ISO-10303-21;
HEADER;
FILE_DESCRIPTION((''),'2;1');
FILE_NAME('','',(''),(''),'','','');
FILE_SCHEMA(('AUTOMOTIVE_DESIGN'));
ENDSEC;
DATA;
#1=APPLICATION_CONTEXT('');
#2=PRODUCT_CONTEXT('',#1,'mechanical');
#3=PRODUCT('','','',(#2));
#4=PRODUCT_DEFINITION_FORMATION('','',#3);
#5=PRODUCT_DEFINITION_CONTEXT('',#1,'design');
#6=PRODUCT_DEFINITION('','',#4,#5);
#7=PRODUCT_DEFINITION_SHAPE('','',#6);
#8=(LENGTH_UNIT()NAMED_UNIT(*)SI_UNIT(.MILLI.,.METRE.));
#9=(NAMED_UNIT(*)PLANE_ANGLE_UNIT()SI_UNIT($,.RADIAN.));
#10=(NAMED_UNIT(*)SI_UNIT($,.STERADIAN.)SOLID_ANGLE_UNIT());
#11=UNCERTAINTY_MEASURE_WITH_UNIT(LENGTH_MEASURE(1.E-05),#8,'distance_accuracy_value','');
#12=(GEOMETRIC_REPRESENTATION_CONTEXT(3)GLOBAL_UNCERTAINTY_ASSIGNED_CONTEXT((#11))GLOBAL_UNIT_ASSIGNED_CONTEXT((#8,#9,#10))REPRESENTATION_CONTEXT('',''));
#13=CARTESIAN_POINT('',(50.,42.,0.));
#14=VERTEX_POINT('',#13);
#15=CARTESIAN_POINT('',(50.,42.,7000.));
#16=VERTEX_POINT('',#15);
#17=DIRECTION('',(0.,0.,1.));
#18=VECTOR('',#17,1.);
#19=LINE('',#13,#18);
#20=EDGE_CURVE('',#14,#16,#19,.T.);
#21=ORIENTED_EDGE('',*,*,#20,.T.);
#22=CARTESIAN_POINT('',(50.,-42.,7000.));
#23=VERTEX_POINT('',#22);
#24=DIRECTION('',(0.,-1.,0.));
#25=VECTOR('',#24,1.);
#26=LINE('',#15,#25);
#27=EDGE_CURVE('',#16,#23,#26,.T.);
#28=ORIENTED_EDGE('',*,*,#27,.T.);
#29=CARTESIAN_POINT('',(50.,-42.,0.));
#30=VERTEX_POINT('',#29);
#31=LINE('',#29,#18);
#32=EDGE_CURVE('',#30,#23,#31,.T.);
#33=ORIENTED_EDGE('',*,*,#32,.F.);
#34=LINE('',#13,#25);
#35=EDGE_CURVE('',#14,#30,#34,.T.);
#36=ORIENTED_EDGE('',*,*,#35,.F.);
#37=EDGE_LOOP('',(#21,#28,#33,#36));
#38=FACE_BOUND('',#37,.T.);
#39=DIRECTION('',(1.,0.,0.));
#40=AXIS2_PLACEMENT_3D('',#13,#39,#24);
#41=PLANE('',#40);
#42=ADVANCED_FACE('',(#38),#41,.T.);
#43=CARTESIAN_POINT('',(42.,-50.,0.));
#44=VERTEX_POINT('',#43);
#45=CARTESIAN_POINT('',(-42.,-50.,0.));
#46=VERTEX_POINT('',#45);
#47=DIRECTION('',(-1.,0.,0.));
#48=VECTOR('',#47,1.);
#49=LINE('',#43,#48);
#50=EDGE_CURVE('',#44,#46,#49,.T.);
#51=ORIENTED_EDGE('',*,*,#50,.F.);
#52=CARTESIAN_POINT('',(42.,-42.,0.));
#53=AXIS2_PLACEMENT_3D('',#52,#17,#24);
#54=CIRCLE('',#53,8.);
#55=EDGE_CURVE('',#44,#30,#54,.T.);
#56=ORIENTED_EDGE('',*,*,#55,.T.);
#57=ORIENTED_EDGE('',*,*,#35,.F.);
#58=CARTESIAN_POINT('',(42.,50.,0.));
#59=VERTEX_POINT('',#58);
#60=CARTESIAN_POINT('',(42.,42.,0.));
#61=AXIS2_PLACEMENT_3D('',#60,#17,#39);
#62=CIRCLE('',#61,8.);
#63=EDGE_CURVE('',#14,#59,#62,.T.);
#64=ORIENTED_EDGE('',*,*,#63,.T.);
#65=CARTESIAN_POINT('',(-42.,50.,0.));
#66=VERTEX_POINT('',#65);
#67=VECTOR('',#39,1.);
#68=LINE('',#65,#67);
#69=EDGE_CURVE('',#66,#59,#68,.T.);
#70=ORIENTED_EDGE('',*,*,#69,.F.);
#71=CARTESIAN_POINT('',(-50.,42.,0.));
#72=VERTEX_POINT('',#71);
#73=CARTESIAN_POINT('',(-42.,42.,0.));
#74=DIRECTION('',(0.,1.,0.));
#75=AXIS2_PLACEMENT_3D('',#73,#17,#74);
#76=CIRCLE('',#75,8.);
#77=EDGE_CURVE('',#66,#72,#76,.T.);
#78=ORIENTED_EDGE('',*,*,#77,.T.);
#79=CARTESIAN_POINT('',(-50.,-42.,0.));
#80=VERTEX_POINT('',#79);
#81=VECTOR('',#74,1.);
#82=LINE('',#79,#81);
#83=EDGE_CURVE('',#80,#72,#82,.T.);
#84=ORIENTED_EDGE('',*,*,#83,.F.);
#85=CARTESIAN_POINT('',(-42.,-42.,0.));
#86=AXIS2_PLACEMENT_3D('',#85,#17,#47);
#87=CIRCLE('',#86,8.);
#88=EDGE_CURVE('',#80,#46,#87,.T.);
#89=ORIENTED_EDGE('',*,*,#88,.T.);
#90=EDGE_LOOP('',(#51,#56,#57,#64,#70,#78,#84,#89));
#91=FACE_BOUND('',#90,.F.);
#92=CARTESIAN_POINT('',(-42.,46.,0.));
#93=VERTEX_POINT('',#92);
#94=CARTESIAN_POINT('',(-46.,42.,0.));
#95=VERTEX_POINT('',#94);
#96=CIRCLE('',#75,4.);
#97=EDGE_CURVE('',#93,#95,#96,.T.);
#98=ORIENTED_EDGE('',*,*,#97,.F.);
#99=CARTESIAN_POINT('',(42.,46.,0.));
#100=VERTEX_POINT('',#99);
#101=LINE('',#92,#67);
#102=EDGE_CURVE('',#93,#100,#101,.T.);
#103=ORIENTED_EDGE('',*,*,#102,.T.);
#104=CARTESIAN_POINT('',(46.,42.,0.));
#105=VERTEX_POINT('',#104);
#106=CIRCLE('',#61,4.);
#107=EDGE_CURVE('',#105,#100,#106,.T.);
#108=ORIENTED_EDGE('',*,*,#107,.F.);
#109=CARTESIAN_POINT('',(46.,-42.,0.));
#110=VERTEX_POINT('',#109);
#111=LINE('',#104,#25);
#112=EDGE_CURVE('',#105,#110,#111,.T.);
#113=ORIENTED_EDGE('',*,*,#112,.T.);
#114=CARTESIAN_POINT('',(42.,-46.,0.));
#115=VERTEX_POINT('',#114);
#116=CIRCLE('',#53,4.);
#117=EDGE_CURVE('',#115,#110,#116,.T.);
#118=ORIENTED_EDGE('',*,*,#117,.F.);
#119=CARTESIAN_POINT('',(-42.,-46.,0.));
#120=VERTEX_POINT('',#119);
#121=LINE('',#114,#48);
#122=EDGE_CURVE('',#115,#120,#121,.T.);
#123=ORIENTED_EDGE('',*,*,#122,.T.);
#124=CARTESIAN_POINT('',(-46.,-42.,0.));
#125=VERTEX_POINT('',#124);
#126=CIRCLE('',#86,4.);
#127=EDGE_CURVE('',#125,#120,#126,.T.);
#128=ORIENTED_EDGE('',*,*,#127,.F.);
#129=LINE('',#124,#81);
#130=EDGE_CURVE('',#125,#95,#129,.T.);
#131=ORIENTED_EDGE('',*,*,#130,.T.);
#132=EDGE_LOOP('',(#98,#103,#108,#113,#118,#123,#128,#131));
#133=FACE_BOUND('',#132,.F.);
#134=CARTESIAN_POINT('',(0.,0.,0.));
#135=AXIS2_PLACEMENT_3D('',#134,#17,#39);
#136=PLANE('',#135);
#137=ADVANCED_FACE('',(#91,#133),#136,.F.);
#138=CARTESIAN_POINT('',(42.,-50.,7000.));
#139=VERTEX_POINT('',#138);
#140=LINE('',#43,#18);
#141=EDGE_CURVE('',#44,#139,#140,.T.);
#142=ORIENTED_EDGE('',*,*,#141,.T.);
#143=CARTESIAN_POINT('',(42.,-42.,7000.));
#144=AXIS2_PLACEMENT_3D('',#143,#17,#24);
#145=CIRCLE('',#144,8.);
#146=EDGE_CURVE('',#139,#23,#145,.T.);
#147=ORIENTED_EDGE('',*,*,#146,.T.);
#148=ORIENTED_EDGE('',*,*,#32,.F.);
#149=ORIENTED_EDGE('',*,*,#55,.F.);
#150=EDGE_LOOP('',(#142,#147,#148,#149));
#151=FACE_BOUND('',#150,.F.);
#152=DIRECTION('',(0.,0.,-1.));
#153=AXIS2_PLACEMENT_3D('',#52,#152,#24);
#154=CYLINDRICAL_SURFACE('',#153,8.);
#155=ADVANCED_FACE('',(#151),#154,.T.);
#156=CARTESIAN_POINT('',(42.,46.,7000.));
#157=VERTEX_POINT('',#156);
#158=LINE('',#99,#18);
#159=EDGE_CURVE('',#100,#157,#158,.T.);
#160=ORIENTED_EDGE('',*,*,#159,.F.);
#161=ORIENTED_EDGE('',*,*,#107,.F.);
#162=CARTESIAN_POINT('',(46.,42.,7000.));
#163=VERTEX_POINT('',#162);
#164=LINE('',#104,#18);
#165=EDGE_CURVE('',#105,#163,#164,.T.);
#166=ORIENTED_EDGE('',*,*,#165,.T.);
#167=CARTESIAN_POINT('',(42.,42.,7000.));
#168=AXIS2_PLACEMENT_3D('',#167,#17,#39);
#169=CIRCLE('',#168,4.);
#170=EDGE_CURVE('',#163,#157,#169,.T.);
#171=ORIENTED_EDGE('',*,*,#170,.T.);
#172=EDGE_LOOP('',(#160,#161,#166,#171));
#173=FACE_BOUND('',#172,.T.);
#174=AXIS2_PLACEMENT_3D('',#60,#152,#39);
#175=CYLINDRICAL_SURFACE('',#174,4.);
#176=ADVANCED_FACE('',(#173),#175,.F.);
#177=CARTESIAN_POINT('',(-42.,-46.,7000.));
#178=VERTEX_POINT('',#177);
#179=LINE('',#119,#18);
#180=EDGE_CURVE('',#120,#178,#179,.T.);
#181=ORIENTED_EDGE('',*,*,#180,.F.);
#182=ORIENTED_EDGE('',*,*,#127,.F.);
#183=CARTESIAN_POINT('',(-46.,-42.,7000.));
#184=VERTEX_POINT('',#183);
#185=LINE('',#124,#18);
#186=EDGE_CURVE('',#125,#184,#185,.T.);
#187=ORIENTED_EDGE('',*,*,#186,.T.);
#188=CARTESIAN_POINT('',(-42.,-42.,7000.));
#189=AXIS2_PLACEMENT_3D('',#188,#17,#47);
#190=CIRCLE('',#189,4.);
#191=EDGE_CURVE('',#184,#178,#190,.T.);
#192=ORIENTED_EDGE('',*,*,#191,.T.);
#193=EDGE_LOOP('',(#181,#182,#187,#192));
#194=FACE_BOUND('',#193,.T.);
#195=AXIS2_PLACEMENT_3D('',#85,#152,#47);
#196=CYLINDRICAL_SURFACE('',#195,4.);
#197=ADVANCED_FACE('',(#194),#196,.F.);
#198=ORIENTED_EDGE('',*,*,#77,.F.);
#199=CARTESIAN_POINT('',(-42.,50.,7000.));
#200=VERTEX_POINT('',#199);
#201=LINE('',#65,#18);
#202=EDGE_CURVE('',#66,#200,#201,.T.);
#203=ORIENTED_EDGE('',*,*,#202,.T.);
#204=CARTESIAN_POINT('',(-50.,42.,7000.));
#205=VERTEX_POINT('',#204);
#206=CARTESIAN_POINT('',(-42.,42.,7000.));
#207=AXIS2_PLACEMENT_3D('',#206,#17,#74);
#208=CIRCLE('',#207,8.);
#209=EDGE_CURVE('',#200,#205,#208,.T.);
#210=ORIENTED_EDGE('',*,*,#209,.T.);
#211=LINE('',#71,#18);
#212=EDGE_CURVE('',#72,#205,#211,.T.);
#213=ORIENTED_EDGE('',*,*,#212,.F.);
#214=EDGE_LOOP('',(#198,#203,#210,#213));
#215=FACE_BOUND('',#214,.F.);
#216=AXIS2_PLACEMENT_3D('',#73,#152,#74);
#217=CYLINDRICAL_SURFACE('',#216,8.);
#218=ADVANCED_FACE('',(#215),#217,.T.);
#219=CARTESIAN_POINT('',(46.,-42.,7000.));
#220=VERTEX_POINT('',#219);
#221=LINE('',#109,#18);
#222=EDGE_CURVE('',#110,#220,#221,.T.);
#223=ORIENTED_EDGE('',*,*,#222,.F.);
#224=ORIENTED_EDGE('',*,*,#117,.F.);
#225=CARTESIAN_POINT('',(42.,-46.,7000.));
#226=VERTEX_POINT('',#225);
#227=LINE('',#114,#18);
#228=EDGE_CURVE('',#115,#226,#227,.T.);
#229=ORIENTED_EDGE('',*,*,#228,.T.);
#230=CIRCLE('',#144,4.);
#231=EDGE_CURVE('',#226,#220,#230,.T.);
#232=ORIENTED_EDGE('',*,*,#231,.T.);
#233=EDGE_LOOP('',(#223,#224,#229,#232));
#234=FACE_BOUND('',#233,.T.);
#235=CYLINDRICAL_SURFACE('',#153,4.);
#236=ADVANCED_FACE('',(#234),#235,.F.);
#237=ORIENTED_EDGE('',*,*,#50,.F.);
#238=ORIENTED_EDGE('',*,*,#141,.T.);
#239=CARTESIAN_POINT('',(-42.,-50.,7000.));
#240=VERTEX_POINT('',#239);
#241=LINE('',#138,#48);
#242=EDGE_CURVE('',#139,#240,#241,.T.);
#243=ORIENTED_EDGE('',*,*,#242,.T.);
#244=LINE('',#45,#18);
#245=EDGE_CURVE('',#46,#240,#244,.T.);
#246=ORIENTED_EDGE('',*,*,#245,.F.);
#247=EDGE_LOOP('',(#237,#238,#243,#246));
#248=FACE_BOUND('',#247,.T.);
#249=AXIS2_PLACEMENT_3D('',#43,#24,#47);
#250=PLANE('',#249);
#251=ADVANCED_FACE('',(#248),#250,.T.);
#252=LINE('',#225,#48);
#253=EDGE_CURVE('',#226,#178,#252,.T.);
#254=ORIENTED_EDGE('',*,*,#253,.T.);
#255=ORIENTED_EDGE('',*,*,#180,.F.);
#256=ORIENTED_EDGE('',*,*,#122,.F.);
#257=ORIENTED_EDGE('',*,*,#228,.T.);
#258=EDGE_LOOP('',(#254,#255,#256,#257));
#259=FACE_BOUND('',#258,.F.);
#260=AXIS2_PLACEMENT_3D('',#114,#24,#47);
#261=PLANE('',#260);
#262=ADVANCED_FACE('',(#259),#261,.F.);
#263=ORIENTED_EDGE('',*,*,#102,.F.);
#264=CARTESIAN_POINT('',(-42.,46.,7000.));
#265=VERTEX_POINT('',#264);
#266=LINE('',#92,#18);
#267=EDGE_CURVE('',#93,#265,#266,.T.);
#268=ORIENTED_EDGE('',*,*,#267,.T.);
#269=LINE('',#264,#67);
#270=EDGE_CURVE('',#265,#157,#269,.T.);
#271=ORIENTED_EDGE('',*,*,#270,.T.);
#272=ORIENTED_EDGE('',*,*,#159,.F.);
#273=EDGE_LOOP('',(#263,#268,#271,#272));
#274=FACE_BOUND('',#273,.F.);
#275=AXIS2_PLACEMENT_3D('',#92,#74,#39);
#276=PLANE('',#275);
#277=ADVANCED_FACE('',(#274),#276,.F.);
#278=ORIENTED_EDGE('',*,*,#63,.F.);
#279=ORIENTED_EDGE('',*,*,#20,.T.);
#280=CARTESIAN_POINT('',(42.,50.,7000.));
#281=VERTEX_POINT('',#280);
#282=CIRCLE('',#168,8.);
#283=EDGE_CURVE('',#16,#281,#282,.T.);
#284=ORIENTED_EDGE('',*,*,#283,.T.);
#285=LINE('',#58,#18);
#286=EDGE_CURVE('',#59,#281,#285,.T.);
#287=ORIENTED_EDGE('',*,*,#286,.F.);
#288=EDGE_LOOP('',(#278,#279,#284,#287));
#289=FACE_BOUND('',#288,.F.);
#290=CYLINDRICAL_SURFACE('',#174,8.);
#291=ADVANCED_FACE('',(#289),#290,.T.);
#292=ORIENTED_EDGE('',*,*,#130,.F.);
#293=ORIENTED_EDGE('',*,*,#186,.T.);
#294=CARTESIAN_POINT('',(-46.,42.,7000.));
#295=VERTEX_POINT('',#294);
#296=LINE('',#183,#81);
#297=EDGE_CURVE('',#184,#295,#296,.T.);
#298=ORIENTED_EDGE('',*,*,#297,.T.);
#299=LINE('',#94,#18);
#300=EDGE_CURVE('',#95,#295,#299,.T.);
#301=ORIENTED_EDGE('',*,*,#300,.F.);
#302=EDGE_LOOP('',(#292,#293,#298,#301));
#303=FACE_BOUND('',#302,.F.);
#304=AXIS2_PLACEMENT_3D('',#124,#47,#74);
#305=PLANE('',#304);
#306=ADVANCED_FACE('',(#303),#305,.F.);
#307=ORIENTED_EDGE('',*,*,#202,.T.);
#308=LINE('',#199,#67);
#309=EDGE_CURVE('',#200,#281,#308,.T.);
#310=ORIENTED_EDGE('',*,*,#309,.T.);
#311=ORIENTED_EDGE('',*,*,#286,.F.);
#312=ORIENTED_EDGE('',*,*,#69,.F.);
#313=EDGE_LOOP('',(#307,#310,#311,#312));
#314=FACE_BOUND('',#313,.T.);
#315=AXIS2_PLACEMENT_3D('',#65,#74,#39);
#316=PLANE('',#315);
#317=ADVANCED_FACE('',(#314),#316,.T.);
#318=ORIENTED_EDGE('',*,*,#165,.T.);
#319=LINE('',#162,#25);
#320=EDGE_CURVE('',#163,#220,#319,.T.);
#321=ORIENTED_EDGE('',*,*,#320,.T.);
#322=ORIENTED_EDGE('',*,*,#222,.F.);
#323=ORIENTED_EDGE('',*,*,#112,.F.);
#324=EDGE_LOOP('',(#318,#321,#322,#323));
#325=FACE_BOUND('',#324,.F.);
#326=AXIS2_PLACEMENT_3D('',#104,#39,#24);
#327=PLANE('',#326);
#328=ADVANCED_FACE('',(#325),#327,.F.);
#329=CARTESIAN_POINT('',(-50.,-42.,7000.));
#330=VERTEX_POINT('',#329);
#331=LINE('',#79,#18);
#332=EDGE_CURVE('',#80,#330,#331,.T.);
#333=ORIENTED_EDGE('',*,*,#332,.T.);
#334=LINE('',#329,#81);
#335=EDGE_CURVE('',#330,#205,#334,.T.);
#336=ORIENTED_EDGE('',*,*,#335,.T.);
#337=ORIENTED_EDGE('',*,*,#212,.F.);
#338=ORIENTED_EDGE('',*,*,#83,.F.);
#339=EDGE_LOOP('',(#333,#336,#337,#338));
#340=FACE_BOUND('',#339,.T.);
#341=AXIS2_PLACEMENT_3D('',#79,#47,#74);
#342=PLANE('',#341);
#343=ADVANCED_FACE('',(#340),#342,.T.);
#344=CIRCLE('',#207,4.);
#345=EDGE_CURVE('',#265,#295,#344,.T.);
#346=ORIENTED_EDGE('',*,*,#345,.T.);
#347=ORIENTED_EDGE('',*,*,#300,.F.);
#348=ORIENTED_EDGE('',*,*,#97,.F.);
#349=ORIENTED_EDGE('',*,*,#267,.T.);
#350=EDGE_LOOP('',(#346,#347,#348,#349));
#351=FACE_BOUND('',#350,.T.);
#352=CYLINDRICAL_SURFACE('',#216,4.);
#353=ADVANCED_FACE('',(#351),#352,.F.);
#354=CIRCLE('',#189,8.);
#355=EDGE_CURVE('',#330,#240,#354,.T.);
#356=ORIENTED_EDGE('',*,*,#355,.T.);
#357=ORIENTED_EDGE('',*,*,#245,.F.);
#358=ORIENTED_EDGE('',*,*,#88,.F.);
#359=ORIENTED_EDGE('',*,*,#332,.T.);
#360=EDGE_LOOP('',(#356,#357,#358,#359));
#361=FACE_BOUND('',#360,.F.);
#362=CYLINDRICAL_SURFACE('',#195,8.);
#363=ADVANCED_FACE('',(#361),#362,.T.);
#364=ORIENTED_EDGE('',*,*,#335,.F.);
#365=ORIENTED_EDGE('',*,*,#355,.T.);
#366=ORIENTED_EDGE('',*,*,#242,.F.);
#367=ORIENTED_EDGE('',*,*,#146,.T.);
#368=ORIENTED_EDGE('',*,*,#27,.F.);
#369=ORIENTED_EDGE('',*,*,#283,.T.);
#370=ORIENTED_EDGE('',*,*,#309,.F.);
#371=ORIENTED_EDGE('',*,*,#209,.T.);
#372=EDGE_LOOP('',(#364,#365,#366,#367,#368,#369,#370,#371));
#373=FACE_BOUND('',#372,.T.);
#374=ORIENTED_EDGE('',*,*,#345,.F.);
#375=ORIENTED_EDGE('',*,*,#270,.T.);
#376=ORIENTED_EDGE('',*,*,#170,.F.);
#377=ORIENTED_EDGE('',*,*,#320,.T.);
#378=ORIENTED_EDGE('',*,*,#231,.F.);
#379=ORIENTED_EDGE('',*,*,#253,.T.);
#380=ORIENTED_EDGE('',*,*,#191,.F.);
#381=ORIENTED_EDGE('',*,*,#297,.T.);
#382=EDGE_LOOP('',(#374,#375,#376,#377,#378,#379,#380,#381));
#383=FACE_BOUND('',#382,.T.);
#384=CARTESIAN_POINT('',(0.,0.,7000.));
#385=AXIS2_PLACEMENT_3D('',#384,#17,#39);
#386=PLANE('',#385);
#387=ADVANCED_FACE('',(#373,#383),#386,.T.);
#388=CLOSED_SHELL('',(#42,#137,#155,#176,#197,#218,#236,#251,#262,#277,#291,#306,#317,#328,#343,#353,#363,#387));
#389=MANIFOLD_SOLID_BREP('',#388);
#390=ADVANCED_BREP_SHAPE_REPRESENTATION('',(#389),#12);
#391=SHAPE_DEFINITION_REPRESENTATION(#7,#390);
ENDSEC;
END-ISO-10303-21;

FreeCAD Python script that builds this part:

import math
import FreeCAD as App
import Part
import Sketcher

V = App.Vector
Q = App.Units.Quantity

doc = App.newDocument("Part")
body = doc.addObject("PartDesign::Body", "Body")

sketch1 = body.newObject("Sketcher::SketchObject", "Sketch")
sketch1.AttachmentSupport = (doc.getObject("XY_Plane"), [""])
sketch1.MapMode = "FlatFace"
sketch1.addGeometry(Part.LineSegment(V(-50, 42, 0), V(-50, -42, 0)), False)
sketch1.addGeometry(Part.ArcOfCircle(Part.Circle(V(-42, -42, 0), V(0, 0, 1), 8), math.radians(180), math.radians(270)), False)
sketch1.addGeometry(Part.LineSegment(V(-42, -50, 0), V(42, -50, 0)), False)
sketch1.addGeometry(Part.ArcOfCircle(Part.Circle(V(42, -42, 0), V(0, 0, 1), 8), math.radians(-90), math.radians(0)), False)
sketch1.addGeometry(Part.LineSegment(V(50, -42, 0), V(50, 42, 0)), False)
sketch1.addGeometry(Part.ArcOfCircle(Part.Circle(V(42, 42, 0), V(0, 0, 1), 8), math.radians(0), math.radians(90)), False)
sketch1.addGeometry(Part.LineSegment(V(42, 50, 0), V(-42, 50, 0)), False)
sketch1.addGeometry(Part.ArcOfCircle(Part.Circle(V(-42, 42, 0), V(0, 0, 1), 8), math.radians(90), math.radians(180)), False)
sketch1.addGeometry(Part.ArcOfCircle(Part.Circle(V(-42, 42, 0), V(0, 0, 1), 4), math.radians(90), math.radians(180)), False)
sketch1.addGeometry(Part.LineSegment(V(-42, 46, 0), V(42, 46, 0)), False)
sketch1.addGeometry(Part.ArcOfCircle(Part.Circle(V(42, 42, 0), V(0, 0, 1), 4), math.radians(0), math.radians(90)), False)
sketch1.addGeometry(Part.LineSegment(V(46, 42, 0), V(46, -42, 0)), False)
sketch1.addGeometry(Part.ArcOfCircle(Part.Circle(V(42, -42, 0), V(0, 0, 1), 4), math.radians(-90), math.radians(0)), False)
sketch1.addGeometry(Part.LineSegment(V(42, -46, 0), V(-42, -46, 0)), False)
sketch1.addGeometry(Part.ArcOfCircle(Part.Circle(V(-42, -42, 0), V(0, 0, 1), 4), math.radians(180), math.radians(270)), False)
sketch1.addGeometry(Part.LineSegment(V(-46, -42, 0), V(-46, 42, 0)), False)
sketch1.addConstraint(Sketcher.Constraint("Tangent", 0, 2, 1, 1))
sketch1.addConstraint(Sketcher.Constraint("Tangent", 1, 2, 2, 1))
sketch1.addConstraint(Sketcher.Constraint("Tangent", 2, 2, 3, 1))
sketch1.addConstraint(Sketcher.Constraint("Tangent", 3, 2, 4, 1))
sketch1.addConstraint(Sketcher.Constraint("Tangent", 4, 2, 5, 1))
sketch1.addConstraint(Sketcher.Constraint("Tangent", 5, 2, 6, 1))
sketch1.addConstraint(Sketcher.Constraint("Tangent", 6, 2, 7, 1))
sketch1.addConstraint(Sketcher.Constraint("Tangent", 7, 2, 0, 1))
sketch1.addConstraint(Sketcher.Constraint("Tangent", 8, 1, 9, 1))
sketch1.addConstraint(Sketcher.Constraint("Tangent", 9, 2, 10, 2))
sketch1.addConstraint(Sketcher.Constraint("Tangent", 10, 1, 11, 1))
sketch1.addConstraint(Sketcher.Constraint("Tangent", 11, 2, 12, 2))
sketch1.addConstraint(Sketcher.Constraint("Tangent", 12, 1, 13, 1))
sketch1.addConstraint(Sketcher.Constraint("Tangent", 13, 2, 14, 2))
sketch1.addConstraint(Sketcher.Constraint("Tangent", 14, 1, 15, 1))
sketch1.addConstraint(Sketcher.Constraint("Tangent", 15, 2, 8, 2))
sketch1.addConstraint(Sketcher.Constraint("Vertical", 0))
sketch1.addConstraint(Sketcher.Constraint("Horizontal", 2))
sketch1.addConstraint(Sketcher.Constraint("Vertical", 4))
sketch1.addConstraint(Sketcher.Constraint("Horizontal", 6))
sketch1.addConstraint(Sketcher.Constraint("Horizontal", 9))
sketch1.addConstraint(Sketcher.Constraint("Vertical", 11))
sketch1.addConstraint(Sketcher.Constraint("Horizontal", 13))
sketch1.addConstraint(Sketcher.Constraint("Vertical", 15))
sketch1.addConstraint(Sketcher.Constraint("Coincident", 8, 3, 7, 3))
sketch1.addConstraint(Sketcher.Constraint("Coincident", 10, 3, 5, 3))
sketch1.addConstraint(Sketcher.Constraint("Coincident", 12, 3, 3, 3))
sketch1.addConstraint(Sketcher.Constraint("Equal", 1, 3))
sketch1.addConstraint(Sketcher.Constraint("Equal", 3, 5))
sketch1.addConstraint(Sketcher.Constraint("Equal", 5, 7))
sketch1.addConstraint(Sketcher.Constraint("Equal", 12, 14))
sketch1.addConstraint(Sketcher.Constraint("Symmetric", 1, 3, 5, 3, -1, 1))
sketch1.addConstraint(Sketcher.Constraint("Equal", 13, 0))
sketch1.addConstraint(Sketcher.Constraint("Radius", 1, Q("8 mm")))
sketch1.addConstraint(Sketcher.Constraint("Radius", 8, Q("4 mm")))
sketch1.addConstraint(Sketcher.Constraint("DistanceX", 0, 2, -1, 1, Q("50 mm")))
pad1 = body.newObject("PartDesign::Pad", "Pad")
pad1.Profile = sketch1
pad1.Length = 7000

doc.recompute()
